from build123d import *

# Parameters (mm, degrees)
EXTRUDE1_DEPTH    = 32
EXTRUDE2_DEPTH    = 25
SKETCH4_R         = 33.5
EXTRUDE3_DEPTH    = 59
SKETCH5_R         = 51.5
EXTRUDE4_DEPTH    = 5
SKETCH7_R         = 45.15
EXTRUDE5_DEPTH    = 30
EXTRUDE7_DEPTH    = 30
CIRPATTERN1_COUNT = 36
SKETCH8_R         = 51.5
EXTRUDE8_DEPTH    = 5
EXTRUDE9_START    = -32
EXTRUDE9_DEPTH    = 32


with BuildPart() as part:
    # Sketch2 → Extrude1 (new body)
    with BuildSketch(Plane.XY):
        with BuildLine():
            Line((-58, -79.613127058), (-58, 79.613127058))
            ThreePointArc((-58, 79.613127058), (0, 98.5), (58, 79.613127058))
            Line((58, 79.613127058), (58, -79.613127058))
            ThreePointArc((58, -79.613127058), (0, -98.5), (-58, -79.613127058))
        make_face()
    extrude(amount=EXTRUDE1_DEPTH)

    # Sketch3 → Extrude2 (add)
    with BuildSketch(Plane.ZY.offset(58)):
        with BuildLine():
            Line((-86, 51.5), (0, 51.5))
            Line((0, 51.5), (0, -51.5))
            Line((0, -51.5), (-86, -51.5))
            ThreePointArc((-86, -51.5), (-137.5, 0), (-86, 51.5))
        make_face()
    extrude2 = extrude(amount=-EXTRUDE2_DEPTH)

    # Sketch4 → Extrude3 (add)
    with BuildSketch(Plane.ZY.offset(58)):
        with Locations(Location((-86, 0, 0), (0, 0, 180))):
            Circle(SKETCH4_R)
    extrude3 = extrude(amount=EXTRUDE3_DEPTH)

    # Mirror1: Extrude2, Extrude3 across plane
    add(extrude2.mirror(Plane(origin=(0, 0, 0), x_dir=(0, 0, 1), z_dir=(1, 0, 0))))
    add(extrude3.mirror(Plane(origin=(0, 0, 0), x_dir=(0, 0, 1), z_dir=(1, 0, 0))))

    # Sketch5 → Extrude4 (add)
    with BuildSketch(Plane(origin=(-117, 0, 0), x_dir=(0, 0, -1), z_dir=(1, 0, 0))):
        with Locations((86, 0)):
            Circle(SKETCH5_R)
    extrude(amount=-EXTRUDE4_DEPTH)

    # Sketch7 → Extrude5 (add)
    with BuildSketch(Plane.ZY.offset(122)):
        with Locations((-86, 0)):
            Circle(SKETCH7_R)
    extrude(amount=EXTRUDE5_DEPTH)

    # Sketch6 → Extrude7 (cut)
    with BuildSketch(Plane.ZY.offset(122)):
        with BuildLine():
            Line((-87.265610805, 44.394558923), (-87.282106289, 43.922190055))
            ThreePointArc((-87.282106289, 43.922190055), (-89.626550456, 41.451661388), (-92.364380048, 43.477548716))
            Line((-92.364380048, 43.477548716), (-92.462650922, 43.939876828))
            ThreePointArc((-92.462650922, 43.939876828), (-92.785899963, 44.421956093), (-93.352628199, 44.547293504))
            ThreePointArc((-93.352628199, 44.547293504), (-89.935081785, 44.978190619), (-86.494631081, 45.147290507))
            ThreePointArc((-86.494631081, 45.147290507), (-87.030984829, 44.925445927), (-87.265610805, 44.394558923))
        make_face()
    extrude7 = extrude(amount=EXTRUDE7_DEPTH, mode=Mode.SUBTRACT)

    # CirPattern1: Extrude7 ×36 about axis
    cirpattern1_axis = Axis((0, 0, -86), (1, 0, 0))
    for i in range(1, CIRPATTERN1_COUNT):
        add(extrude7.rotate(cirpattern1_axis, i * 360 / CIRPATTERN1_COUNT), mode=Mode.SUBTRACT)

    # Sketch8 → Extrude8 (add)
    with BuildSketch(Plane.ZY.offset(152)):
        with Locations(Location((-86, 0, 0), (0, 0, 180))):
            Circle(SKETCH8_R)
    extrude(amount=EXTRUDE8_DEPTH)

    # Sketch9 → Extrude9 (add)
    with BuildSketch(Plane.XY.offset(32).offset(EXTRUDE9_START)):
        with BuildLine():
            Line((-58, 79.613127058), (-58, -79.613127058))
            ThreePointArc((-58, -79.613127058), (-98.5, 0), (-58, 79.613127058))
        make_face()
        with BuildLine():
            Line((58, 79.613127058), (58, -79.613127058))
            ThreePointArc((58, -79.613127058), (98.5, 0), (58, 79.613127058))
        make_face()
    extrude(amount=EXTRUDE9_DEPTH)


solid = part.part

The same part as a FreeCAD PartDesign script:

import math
import FreeCAD as App
import Part
import Sketcher
from FreeCAD import Vector
Q = App.Units.Quantity

doc = App.newDocument("Part")
body = doc.addObject("PartDesign::Body", "Body")

# Sketch on XY plane
sketch1 = body.newObject("Sketcher::SketchObject", "Sketch")
sketch1.AttachmentSupport = (doc.getObject("XY_Plane"), [""])
sketch1.MapMode = "FlatFace"
sketch1.addGeometry([
    Part.LineSegment(Vector(-58, 80, 0), Vector(-58, -80, 0)),
    Part.ArcOfCircle(Part.Circle(Vector(0, 0, 0), Vector(0, 0, 1), 98), math.radians(-126), math.radians(-54)),
    Part.LineSegment(Vector(58, -80, 0), Vector(58, 80, 0)),
    Part.ArcOfCircle(Part.Circle(Vector(0, 0, 0), Vector(0, 0, 1), 98), math.radians(54), math.radians(126)),
], False)
sketch1.addConstraint([
    Sketcher.Constraint("Coincident", 0, 2, 1, 1),
    Sketcher.Constraint("Coincident", 1, 2, 2, 1),
    Sketcher.Constraint("Coincident", 2, 2, 3, 1),
    Sketcher.Constraint("Coincident", 3, 2, 0, 1),
    Sketcher.Constraint("Vertical", 0),
    Sketcher.Constraint("Vertical", 2),
    Sketcher.Constraint("Coincident", 1, 3, -1, 1),
    Sketcher.Constraint("Coincident", 3, 3, -1, 1),
    Sketcher.Constraint("Equal", 1, 3),
    Sketcher.Constraint("Horizontal", 0, 2, 1, 2),
    Sketcher.Constraint("Radius", 1, 98.5),
    Sketcher.Constraint("DistanceX", 0, 2, -1, 1, 58.0),
])
pad1 = body.newObject("PartDesign::Pad", "Pad")
pad1.Profile = sketch1
pad1.Length = 32

# Sketch on YZ plane
sketch2 = body.newObject("Sketcher::SketchObject", "Sketch001")
sketch2.AttachmentSupport = (doc.getObject("YZ_Plane"), [""])
sketch2.MapMode = "FlatFace"
sketch2.AttachmentOffset = App.Placement(Vector(0, 0, -58), App.Rotation())
sketch2.addGeometry([
    Part.LineSegment(Vector(52, 0, 0), Vector(52, -86, 0)),
    Part.ArcOfCircle(Part.Circle(Vector(0, -86, 0), Vector(0, 0, 1), 52), math.radians(180), math.radians(360)),
    Part.LineSegment(Vector(-52, -86, 0), Vector(-52, 0, 0)),
    Part.LineSegment(Vector(-52, 0, 0), Vector(52, 0, 0)),
], False)
sketch2.addConstraint([
    Sketcher.Constraint("Tangent", 0, 2, 1, 2),
    Sketcher.Constraint("Tangent", 1, 1, 2, 1),
    Sketcher.Constraint("Coincident", 2, 2, 3, 1),
    Sketcher.Constraint("Coincident", 3, 2, 0, 1),
    Sketcher.Constraint("Vertical", 0),
    Sketcher.Constraint("Vertical", 2),
    Sketcher.Constraint("Horizontal", 3),
    Sketcher.Constraint("Symmetric", 2, 2, 3, 2, -1, 1),
    Sketcher.Constraint("Radius", 1, 51.5),
    Sketcher.Constraint("DistanceY", 0, 2, 0, 1, 86.0),
])
pad2 = body.newObject("PartDesign::Pad", "Pad001")
pad2.Profile = sketch2
pad2.Length = 25

# Sketch on YZ plane
sketch3 = body.newObject("Sketcher::SketchObject", "Sketch002")
sketch3.AttachmentSupport = (doc.getObject("YZ_Plane"), [""])
sketch3.MapMode = "FlatFace"
sketch3.AttachmentOffset = App.Placement(Vector(0, 0, -58), App.Rotation())
sketch3.addGeometry(Part.Circle(Vector(0, -86, 0), Vector(0, 0, 1), 34), False)
sketch3.addConstraint([
    Sketcher.Constraint("PointOnObject", 0, 3, -2),
    Sketcher.Constraint("Diameter", 0, 67.0),
    Sketcher.Constraint("DistanceY", 0, 3, -1, 1, 86.0),
])
pad3 = body.newObject("PartDesign::Pad", "Pad002")
pad3.Profile = sketch3
pad3.Length = 59
pad3.Reversed = True
doc.recompute()

mirrored = body.newObject("PartDesign::Mirrored", "Mirrored")
mirrored.Originals = [pad2, pad3]
mirrored.MirrorPlane = (doc.getObject("YZ_Plane"), [""])
body.Tip = mirrored

# Sketch on YZ plane
sketch4 = body.newObject("Sketcher::SketchObject", "Sketch003")
sketch4.AttachmentSupport = (doc.getObject("YZ_Plane"), [""])
sketch4.MapMode = "FlatFace"
sketch4.AttachmentOffset = App.Placement(Vector(0, 0, -117), App.Rotation())
sketch4.addGeometry(Part.Circle(Vector(0, -86, 0), Vector(0, 0, 1), 52), False)
sketch4.addConstraint([
    Sketcher.Constraint("PointOnObject", 0, 3, -2),
    Sketcher.Constraint("Diameter", 0, 103.0),
    Sketcher.Constraint("DistanceY", 0, 3, -1, 1, 86.0),
])
pad4 = body.newObject("PartDesign::Pad", "Pad003")
pad4.Profile = sketch4
pad4.Length = 5
pad4.Reversed = True

# Sketch on YZ plane
sketch5 = body.newObject("Sketcher::SketchObject", "Sketch004")
sketch5.AttachmentSupport = (doc.getObject("YZ_Plane"), [""])
sketch5.MapMode = "FlatFace"
sketch5.AttachmentOffset = App.Placement(Vector(0, 0, -122), App.Rotation())
sketch5.addGeometry(Part.Circle(Vector(0, -86, 0), Vector(0, 0, 1), 45), False)
sketch5.addConstraint([
    Sketcher.Constraint("PointOnObject", 0, 3, -2),
    Sketcher.Constraint("Diameter", 0, 90.3),
    Sketcher.Constraint("DistanceY", 0, 3, -1, 1, 86.0),
])
pad5 = body.newObject("PartDesign::Pad", "Pad004")
pad5.Profile = sketch5
pad5.Length = 30
pad5.Reversed = True

# Sketch on YZ plane
sketch6 = body.newObject("Sketcher::SketchObject", "Sketch005")
sketch6.AttachmentSupport = (doc.getObject("YZ_Plane"), [""])
sketch6.MapMode = "FlatFace"
sketch6.AttachmentOffset = App.Placement(Vector(0, 0, -122), App.Rotation())
sketch6.addGeometry([
    Part.LineSegment(Vector(43.92, -87.28, 0), Vector(44.39, -87.27, 0)),  # 0
    Part.ArcOfCircle(Part.Circle(Vector(44.37, -86.49, 0), Vector(0, 0, 1), 0.78), math.radians(-88), math.radians(-1)),  # 1
    Part.ArcOfCircle(Part.Circle(Vector(0, -86, 0), Vector(0, 0, 1), 45.15), math.radians(-9.37), math.radians(-0.63)),  # 2
    Part.ArcOfCircle(Part.Circle(Vector(43.78, -93.23, 0), Vector(0, 0, 1), 0.78), math.radians(-9), math.radians(78)),  # 3
    Part.LineSegment(Vector(43.94, -92.46, 0), Vector(43.48, -92.36, 0)),  # 4
    Part.ArcOfCircle(Part.Circle(Vector(44.01, -89.85, 0), Vector(0, 0, 1), 2.57), math.radians(92), math.radians(258)),  # 5
], False)
sketch6.addConstraint([
    Sketcher.Constraint("Tangent", 0, 2, 1, 1),
    Sketcher.Constraint("Tangent", 1, 2, 2, 2),
    Sketcher.Constraint("Tangent", 2, 1, 3, 1),
    Sketcher.Constraint("Tangent", 3, 2, 4, 1),
    Sketcher.Constraint("Tangent", 4, 2, 5, 2),
    Sketcher.Constraint("Tangent", 5, 1, 0, 1),
    Sketcher.Constraint("Equal", 1, 3),
    Sketcher.Constraint("PointOnObject", 2, 3, -2),
    Sketcher.Constraint("Equal", 0, 4),
    Sketcher.Constraint("Angle", 0, Q("2 deg")),
    Sketcher.Constraint("Angle", 4, Q("168 deg")),
    Sketcher.Constraint("Radius", 1, 0.78),
    Sketcher.Constraint("Radius", 2, 45.15),
    Sketcher.Constraint("Radius", 5, 2.57),
    Sketcher.Constraint("DistanceY", 2, 3, -1, 1, 86.0),
    Sketcher.Constraint("DistanceX", 5, 1, 1, 2, 1.2251),
])
pocket1 = body.newObject("PartDesign::Pocket", "Pocket")
pocket1.Profile = sketch6
pocket1.Length = 30
doc.recompute()

datumline = body.newObject("PartDesign::Line", "DatumLine")
datumline.Placement = App.Placement(Vector(0, 0, -86), App.Rotation(Vector(0, 0, 1), Vector(1, 0, 0)))
polarpattern = body.newObject("PartDesign::PolarPattern", "PolarPattern")
polarpattern.Originals = [pocket1]
polarpattern.Axis = (datumline, [""])
polarpattern.Angle = 360
polarpattern.Occurrences = 36
body.Tip = polarpattern

# Sketch on YZ plane
sketch7 = body.newObject("Sketcher::SketchObject", "Sketch006")
sketch7.AttachmentSupport = (doc.getObject("YZ_Plane"), [""])
sketch7.MapMode = "FlatFace"
sketch7.AttachmentOffset = App.Placement(Vector(0, 0, -152), App.Rotation())
sketch7.addGeometry(Part.Circle(Vector(0, -86, 0), Vector(0, 0, 1), 52), False)
sketch7.addConstraint([
    Sketcher.Constraint("PointOnObject", 0, 3, -2),
    Sketcher.Constraint("Diameter", 0, 103.0),
    Sketcher.Constraint("DistanceY", 0, 3, -1, 1, 86.0),
])
pad6 = body.newObject("PartDesign::Pad", "Pad005")
pad6.Profile = sketch7
pad6.Length = 5
pad6.Reversed = True

# Sketch on XY plane
sketch8 = body.newObject("Sketcher::SketchObject", "Sketch007")
sketch8.AttachmentSupport = (doc.getObject("XY_Plane"), [""])
sketch8.MapMode = "FlatFace"
sketch8.addGeometry([
    Part.LineSegment(Vector(-58, -80, 0), Vector(-58, 80, 0)),
    Part.ArcOfCircle(Part.Circle(Vector(0, 0, 0), Vector(0, 0, 1), 98), math.radians(126), math.radians(234)),
    Part.LineSegment(Vector(58, 80, 0), Vector(58, -80, 0)),
    Part.ArcOfCircle(Part.Circle(Vector(0, 0, 0), Vector(0, 0, 1), 98), math.radians(-54), math.radians(54)),
], False)
sketch8.addConstraint([
    Sketcher.Constraint("Coincident", 0, 1, 1, 2),
    Sketcher.Constraint("Coincident", 1, 1, 0, 2),
    Sketcher.Constraint("Coincident", 2, 1, 3, 2),
    Sketcher.Constraint("Coincident", 3, 1, 2, 2),
    Sketcher.Constraint("Vertical", 0),
    Sketcher.Constraint("Vertical", 2),
    Sketcher.Constraint("Coincident", 1, 3, -1, 1),
    Sketcher.Constraint("Coincident", 3, 3, -1, 1),
    Sketcher.Constraint("Equal", 1, 3),
    Sketcher.Constraint("Horizontal", 1, 1, 2, 1),
    Sketcher.Constraint("Radius", 1, 98.5),
    Sketcher.Constraint("DistanceX", 0, 1, -1, 1, 58.0),
])
pad7 = body.newObject("PartDesign::Pad", "Pad006")
pad7.Profile = sketch8
pad7.Length = 32

doc.recompute()
